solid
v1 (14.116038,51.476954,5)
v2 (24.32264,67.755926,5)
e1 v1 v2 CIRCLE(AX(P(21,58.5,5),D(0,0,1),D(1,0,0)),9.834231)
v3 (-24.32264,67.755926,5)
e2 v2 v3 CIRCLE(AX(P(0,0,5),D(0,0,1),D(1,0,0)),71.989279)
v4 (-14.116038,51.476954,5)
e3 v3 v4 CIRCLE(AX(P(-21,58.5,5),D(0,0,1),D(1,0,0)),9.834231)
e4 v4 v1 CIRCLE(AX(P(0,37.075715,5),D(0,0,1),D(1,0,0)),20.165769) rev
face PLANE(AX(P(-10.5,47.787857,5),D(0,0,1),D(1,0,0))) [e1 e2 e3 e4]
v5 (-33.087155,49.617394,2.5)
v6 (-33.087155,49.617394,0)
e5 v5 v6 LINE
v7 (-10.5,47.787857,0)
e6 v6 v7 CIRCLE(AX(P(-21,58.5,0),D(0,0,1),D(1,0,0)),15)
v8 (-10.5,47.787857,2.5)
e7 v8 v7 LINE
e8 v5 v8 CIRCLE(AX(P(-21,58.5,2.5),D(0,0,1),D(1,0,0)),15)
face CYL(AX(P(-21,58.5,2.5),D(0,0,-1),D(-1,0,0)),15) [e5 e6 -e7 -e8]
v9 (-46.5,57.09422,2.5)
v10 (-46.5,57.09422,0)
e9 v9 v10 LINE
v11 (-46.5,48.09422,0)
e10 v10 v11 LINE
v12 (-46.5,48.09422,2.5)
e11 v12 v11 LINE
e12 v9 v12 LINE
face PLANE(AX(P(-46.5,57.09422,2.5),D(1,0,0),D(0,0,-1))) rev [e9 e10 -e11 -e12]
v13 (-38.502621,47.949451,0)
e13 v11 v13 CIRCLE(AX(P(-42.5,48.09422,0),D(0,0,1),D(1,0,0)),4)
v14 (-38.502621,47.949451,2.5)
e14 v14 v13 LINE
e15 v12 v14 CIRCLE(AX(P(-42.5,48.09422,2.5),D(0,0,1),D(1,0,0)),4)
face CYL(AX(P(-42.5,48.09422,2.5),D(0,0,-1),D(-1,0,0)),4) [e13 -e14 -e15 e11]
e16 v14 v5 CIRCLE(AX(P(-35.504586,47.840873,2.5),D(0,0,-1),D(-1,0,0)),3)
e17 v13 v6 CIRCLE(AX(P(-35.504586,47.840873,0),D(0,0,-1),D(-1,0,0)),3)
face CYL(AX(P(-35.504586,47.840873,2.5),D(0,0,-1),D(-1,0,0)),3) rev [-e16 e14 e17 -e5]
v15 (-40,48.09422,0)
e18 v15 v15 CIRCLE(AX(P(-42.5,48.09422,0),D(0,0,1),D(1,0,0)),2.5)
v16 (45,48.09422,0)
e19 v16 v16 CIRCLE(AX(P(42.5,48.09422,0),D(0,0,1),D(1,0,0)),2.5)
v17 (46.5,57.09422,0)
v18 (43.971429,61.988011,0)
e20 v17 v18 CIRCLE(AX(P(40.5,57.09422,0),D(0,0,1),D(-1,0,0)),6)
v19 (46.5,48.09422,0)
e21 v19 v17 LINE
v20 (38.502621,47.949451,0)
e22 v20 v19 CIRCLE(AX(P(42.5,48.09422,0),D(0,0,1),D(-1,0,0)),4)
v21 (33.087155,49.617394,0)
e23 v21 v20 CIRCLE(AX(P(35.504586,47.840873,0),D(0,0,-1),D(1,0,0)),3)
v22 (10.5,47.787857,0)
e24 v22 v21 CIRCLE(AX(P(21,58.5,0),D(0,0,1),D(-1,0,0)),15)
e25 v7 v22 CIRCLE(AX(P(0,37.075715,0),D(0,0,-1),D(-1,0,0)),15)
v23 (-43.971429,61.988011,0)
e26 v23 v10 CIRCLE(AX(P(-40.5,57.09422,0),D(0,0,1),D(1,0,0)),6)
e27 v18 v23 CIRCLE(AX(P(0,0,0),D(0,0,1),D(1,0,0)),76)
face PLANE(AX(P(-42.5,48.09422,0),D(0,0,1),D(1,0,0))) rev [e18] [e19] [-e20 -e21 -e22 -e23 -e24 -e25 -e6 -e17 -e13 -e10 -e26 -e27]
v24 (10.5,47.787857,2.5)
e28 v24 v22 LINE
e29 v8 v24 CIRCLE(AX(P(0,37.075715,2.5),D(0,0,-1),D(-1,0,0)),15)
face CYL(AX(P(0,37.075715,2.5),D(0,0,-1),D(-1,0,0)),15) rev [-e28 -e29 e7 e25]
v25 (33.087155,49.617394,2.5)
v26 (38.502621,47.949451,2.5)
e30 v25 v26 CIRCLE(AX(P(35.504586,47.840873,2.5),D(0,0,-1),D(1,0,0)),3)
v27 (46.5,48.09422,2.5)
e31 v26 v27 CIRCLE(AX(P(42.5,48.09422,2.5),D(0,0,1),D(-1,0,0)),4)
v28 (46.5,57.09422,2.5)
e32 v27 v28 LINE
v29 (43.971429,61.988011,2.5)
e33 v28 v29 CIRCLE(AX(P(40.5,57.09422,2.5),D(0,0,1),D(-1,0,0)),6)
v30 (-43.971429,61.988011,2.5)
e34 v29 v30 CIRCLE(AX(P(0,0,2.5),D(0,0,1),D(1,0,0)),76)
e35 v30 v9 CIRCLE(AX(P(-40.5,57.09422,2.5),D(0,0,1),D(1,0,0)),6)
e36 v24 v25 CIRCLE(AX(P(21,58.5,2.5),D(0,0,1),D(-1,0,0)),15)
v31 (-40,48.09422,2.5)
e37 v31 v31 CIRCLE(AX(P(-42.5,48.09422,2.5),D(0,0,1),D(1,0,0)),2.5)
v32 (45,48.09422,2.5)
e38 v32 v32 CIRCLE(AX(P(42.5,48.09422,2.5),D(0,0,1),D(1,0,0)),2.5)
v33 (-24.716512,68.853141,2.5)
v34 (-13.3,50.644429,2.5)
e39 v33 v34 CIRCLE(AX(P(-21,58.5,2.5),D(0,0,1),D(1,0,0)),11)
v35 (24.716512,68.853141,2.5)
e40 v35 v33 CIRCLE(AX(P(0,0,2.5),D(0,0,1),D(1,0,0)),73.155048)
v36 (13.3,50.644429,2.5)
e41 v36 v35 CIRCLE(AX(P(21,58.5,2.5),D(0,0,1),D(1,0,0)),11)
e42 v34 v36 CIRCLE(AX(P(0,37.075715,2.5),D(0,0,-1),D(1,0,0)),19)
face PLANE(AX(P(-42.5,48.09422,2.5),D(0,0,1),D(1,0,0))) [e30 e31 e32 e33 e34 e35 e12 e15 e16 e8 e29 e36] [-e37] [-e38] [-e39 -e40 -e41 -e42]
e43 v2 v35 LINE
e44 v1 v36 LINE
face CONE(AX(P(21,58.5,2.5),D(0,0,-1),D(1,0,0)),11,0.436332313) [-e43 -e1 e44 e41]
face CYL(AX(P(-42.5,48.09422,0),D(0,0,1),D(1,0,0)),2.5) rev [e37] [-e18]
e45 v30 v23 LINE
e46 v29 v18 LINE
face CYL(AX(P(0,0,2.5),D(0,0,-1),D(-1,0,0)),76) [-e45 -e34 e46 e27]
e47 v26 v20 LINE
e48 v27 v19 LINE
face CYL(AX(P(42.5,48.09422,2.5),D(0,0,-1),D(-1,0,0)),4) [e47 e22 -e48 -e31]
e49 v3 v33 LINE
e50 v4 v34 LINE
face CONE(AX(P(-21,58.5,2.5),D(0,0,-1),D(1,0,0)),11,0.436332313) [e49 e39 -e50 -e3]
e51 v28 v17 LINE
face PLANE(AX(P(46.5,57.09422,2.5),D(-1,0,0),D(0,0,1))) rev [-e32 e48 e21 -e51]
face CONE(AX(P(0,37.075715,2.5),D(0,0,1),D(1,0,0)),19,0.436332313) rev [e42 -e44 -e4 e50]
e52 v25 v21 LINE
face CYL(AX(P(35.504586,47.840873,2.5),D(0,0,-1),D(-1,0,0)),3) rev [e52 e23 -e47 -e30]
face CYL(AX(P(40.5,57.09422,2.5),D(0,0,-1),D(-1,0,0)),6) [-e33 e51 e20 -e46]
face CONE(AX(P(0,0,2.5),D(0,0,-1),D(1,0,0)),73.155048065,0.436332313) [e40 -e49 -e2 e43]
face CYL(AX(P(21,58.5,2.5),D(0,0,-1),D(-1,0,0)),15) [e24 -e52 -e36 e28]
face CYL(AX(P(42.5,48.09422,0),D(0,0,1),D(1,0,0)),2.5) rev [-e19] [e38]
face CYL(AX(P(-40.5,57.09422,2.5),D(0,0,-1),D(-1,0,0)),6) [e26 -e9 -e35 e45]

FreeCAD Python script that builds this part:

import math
import FreeCAD as App
import Part
import Sketcher
from FreeCAD import Vector
Q = App.Units.Quantity

doc = App.newDocument("Part")
body = doc.addObject("PartDesign::Body", "Body")

# Sketch on XY plane
sketch1 = body.newObject("Sketcher::SketchObject", "Sketch")
sketch1.AttachmentSupport = (doc.getObject("XY_Plane"), [""])
sketch1.MapMode = "FlatFace"
sketch1.addGeometry(Part.LineSegment(Vector(-46.5, 57.1, 0), Vector(-46.5, 48.1, 0)), False)
sketch1.addGeometry(Part.ArcOfCircle(Part.Circle(Vector(-42.5, 48.1, 0), Vector(0, 0, 1), 4), math.radians(180), math.radians(358)), False)
sketch1.addGeometry(Part.ArcOfCircle(Part.Circle(Vector(-35.5, 47.8, 0), Vector(0, 0, 1), 3), math.radians(36), math.radians(178)), False)
sketch1.addGeometry(Part.ArcOfCircle(Part.Circle(Vector(-21, 58.5, 0), Vector(0, 0, 1), 15), math.radians(-144), math.radians(-46)), False)
sketch1.addGeometry(Part.ArcOfCircle(Part.Circle(Vector(0, 37.1, 0), Vector(0, 0, 1), 15), math.radians(46), math.radians(134)), False)
sketch1.addGeometry(Part.ArcOfCircle(Part.Circle(Vector(21, 58.5, 0), Vector(0, 0, 1), 15), math.radians(-134), math.radians(-36)), False)
sketch1.addGeometry(Part.ArcOfCircle(Part.Circle(Vector(35.5, 47.8, 0), Vector(0, 0, 1), 3), math.radians(2), math.radians(144)), False)
sketch1.addGeometry(Part.ArcOfCircle(Part.Circle(Vector(42.5, 48.1, 0), Vector(0, 0, 1), 4), math.radians(-178), math.radians(0)), False)
sketch1.addGeometry(Part.LineSegment(Vector(46.5, 48.1, 0), Vector(46.5, 57.1, 0)), False)
sketch1.addGeometry(Part.ArcOfCircle(Part.Circle(Vector(40.5, 57.1, 0), Vector(0, 0, 1), 6), math.radians(0), math.radians(55)), False)
sketch1.addGeometry(Part.ArcOfCircle(Part.Circle(Vector(0, 0, 0), Vector(0, 0, 1), 76), math.radians(55), math.radians(125)), False)
sketch1.addGeometry(Part.ArcOfCircle(Part.Circle(Vector(-40.5, 57.1, 0), Vector(0, 0, 1), 6), math.radians(125), math.radians(180)), False)
sketch1.addConstraint(Sketcher.Constraint("Tangent", 0, 2, 1, 1))
sketch1.addConstraint(Sketcher.Constraint("Tangent", 1, 2, 2, 2))
sketch1.addConstraint(Sketcher.Constraint("Tangent", 2, 1, 3, 1))
sketch1.addConstraint(Sketcher.Constraint("Tangent", 3, 2, 4, 2))
sketch1.addConstraint(Sketcher.Constraint("Tangent", 4, 1, 5, 1))
sketch1.addConstraint(Sketcher.Constraint("Tangent", 5, 2, 6, 2))
sketch1.addConstraint(Sketcher.Constraint("Tangent", 6, 1, 7, 1))
sketch1.addConstraint(Sketcher.Constraint("Tangent", 7, 2, 8, 1))
sketch1.addConstraint(Sketcher.Constraint("Tangent", 8, 2, 9, 1))
sketch1.addConstraint(Sketcher.Constraint("Tangent", 9, 2, 10, 1))
sketch1.addConstraint(Sketcher.Constraint("Tangent", 10, 2, 11, 1))
sketch1.addConstraint(Sketcher.Constraint("Tangent", 11, 2, 0, 1))
sketch1.addConstraint(Sketcher.Constraint("Vertical", 0))
sketch1.addConstraint(Sketcher.Constraint("Vertical", 8))
sketch1.addConstraint(Sketcher.Constraint("Coincident", 10, 3, -1, 1))
sketch1.addConstraint(Sketcher.Constraint("Equal", 3, 4))
sketch1.addConstraint(Sketcher.Constraint("Equal", 4, 5))
sketch1.addConstraint(Sketcher.Constraint("Equal", 2, 6))
sketch1.addConstraint(Sketcher.Constraint("Equal", 1, 7))
sketch1.addConstraint(Sketcher.Constraint("Equal", 9, 11))
sketch1.addConstraint(Sketcher.Constraint("Symmetric", 3, 3, 5, 3, -2))
sketch1.addConstraint(Sketcher.Constraint("Symmetric", 1, 3, 7, 3, -2))
sketch1.addConstraint(Sketcher.Constraint("Radius", 1, Q("4 mm")))
sketch1.addConstraint(Sketcher.Constraint("Radius", 2, Q("3 mm")))
sketch1.addConstraint(Sketcher.Constraint("Radius", 3, Q("15 mm")))
sketch1.addConstraint(Sketcher.Constraint("Radius", 9, Q("6 mm")))
sketch1.addConstraint(Sketcher.Constraint("Radius", 10, Q("76 mm")))
sketch1.addConstraint(Sketcher.Constraint("DistanceY", 0, 2, 0, 1, Q("9 mm")))
sketch1.addConstraint(Sketcher.Constraint("DistanceX", 3, 3, -1, 1, Q("21 mm")))
sketch1.addConstraint(Sketcher.Constraint("DistanceX", 4, 1, 9, 3, Q("30 mm")))
sketch1.addConstraint(Sketcher.Constraint("DistanceY", -1, 1, 3, 3, Q("58.5 mm")))
pad1 = body.newObject("PartDesign::Pad", "Pad")
pad1.Profile = sketch1
pad1.Length = 2.5

# Sketch on XY plane
sketch2 = body.newObject("Sketcher::SketchObject", "Sketch001")
sketch2.AttachmentSupport = (doc.getObject("XY_Plane"), [""])
sketch2.MapMode = "FlatFace"
sketch2.AttachmentOffset = App.Placement(Vector(0, 0, 2.5), App.Rotation())
sketch2.addGeometry(Part.ArcOfCircle(Part.Circle(Vector(0, 0, 0), Vector(0, 0, 1), 73), math.radians(70), math.radians(110)), False)
sketch2.addGeometry(Part.ArcOfCircle(Part.Circle(Vector(-21, 58, 0), Vector(0, 0, 1), 11), math.radians(110), math.radians(314)), False)
sketch2.addGeometry(Part.ArcOfCircle(Part.Circle(Vector(0, 37, 0), Vector(0, 0, 1), 19), math.radians(46), math.radians(134)), False)
sketch2.addGeometry(Part.ArcOfCircle(Part.Circle(Vector(21, 58, 0), Vector(0, 0, 1), 11), math.radians(-134), math.radians(70)), False)
sketch2.addConstraint(Sketcher.Constraint("Tangent", 0, 2, 1, 1))
sketch2.addConstraint(Sketcher.Constraint("Tangent", 1, 2, 2, 2))
sketch2.addConstraint(Sketcher.Constraint("Tangent", 2, 1, 3, 1))
sketch2.addConstraint(Sketcher.Constraint("Tangent", 3, 2, 0, 1))
sketch2.addConstraint(Sketcher.Constraint("Coincident", 0, 3, -1, 1))
sketch2.addConstraint(Sketcher.Constraint("Equal", 1, 3))
sketch2.addConstraint(Sketcher.Constraint("PointOnObject", 2, 3, -2))
sketch2.addConstraint(Sketcher.Constraint("Radius", 1, Q("11 mm")))
sketch2.addConstraint(Sketcher.Constraint("Radius", 2, Q("19 mm")))
sketch2.addConstraint(Sketcher.Constraint("DistanceX", 1, 3, -1, 1, Q("21 mm")))
sketch2.addConstraint(Sketcher.Constraint("DistanceY", -1, 1, 1, 3, Q("58.5 mm")))
pad2 = body.newObject("PartDesign::Pad", "Pad001")
pad2.Profile = sketch2
pad2.Length = 2.5
pad2.TaperAngle = -25

# Sketch on XY plane
sketch3 = body.newObject("Sketcher::SketchObject", "Sketch002")
sketch3.AttachmentSupport = (doc.getObject("XY_Plane"), [""])
sketch3.MapMode = "FlatFace"
sketch3.AttachmentOffset = App.Placement(Vector(0, 0, 2.5), App.Rotation())
sketch3.addGeometry(Part.Circle(Vector(-42.5, 48.1, 0), Vector(0, 0, 1), 2.5), False)
sketch3.addGeometry(Part.Circle(Vector(42.5, 48.1, 0), Vector(0, 0, 1), 2.5), False)
sketch3.addConstraint(Sketcher.Constraint("Equal", 0, 1))
sketch3.addConstraint(Sketcher.Constraint("Symmetric", 0, 3, 1, 3, -2))
sketch3.addConstraint(Sketcher.Constraint("Diameter", 0, Q("5 mm")))
sketch3.addConstraint(Sketcher.Constraint("DistanceX", 0, 3, 1, 3, Q("85 mm")))
sketch3.addConstraint(Sketcher.Constraint("DistanceY", -1, 1, 0, 3, Q("48.09422 mm")))
pocket1 = body.newObject("PartDesign::Pocket", "Pocket")
pocket1.Profile = sketch3
pocket1.Type = "ThroughAll"

doc.recompute()
